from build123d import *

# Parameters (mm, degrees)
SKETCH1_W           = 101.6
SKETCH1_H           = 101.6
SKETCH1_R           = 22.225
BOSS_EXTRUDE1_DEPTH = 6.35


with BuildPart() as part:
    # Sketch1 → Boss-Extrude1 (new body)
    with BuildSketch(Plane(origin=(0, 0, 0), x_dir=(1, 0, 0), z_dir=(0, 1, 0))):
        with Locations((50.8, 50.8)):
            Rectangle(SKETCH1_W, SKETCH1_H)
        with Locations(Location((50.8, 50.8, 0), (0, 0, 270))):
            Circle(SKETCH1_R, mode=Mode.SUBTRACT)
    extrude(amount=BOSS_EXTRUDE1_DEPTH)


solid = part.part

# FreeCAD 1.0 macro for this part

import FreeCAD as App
import Part
import Sketcher

V = App.Vector
Q = App.Units.Quantity


def add_polygon(sketch, points):
    """Adds a closed chain of lines whose ends are joined by coincident constraints."""
    first, n = sketch.GeometryCount, len(points)
    for a, b in zip(points, points[1:] + points[:1]):
        sketch.addGeometry(Part.LineSegment(App.Vector(*a, 0), App.Vector(*b, 0)), False)
    for i in range(n):
        sketch.addConstraint(Sketcher.Constraint("Coincident", first + i, 2, first + (i + 1) % n, 1))

doc = App.newDocument("Part")
body = doc.addObject("PartDesign::Body", "Body")

sketch1 = body.newObject("Sketcher::SketchObject", "Sketch")
sketch1.AttachmentSupport = (doc.getObject("XZ_Plane"), [""])
sketch1.MapMode = "FlatFace"
add_polygon(sketch1, [(0, -102), (0, 0), (102, 0), (102, -102)])
sketch1.addGeometry(Part.Circle(V(51, -51, 0), V(0, 0, 1), 22), False)
sketch1.addConstraint(Sketcher.Constraint("Vertical", 0))
sketch1.addConstraint(Sketcher.Constraint("Horizontal", 1))
sketch1.addConstraint(Sketcher.Constraint("Vertical", 2))
sketch1.addConstraint(Sketcher.Constraint("Horizontal", 3))
sketch1.addConstraint(Sketcher.Constraint("Coincident", 0, 2, -1, 1))
sketch1.addConstraint(Sketcher.Constraint("Equal", 3, 0))
sketch1.addConstraint(Sketcher.Constraint("Diameter", 4, Q("1.75 in")))
sketch1.addConstraint(Sketcher.Constraint("DistanceX", 1, 1, 1, 2, Q("4 in")))
sketch1.addConstraint(Sketcher.Constraint("DistanceX", -1, 1, 4, 3, Q("2 in")))
sketch1.addConstraint(Sketcher.Constraint("DistanceY", 4, 3, -1, 1, Q("2 in")))
pad1 = body.newObject("PartDesign::Pad", "Pad")
pad1.Profile = sketch1
pad1.Length = Q("0.25 in")
pad1.Reversed = True

doc.recompute()
